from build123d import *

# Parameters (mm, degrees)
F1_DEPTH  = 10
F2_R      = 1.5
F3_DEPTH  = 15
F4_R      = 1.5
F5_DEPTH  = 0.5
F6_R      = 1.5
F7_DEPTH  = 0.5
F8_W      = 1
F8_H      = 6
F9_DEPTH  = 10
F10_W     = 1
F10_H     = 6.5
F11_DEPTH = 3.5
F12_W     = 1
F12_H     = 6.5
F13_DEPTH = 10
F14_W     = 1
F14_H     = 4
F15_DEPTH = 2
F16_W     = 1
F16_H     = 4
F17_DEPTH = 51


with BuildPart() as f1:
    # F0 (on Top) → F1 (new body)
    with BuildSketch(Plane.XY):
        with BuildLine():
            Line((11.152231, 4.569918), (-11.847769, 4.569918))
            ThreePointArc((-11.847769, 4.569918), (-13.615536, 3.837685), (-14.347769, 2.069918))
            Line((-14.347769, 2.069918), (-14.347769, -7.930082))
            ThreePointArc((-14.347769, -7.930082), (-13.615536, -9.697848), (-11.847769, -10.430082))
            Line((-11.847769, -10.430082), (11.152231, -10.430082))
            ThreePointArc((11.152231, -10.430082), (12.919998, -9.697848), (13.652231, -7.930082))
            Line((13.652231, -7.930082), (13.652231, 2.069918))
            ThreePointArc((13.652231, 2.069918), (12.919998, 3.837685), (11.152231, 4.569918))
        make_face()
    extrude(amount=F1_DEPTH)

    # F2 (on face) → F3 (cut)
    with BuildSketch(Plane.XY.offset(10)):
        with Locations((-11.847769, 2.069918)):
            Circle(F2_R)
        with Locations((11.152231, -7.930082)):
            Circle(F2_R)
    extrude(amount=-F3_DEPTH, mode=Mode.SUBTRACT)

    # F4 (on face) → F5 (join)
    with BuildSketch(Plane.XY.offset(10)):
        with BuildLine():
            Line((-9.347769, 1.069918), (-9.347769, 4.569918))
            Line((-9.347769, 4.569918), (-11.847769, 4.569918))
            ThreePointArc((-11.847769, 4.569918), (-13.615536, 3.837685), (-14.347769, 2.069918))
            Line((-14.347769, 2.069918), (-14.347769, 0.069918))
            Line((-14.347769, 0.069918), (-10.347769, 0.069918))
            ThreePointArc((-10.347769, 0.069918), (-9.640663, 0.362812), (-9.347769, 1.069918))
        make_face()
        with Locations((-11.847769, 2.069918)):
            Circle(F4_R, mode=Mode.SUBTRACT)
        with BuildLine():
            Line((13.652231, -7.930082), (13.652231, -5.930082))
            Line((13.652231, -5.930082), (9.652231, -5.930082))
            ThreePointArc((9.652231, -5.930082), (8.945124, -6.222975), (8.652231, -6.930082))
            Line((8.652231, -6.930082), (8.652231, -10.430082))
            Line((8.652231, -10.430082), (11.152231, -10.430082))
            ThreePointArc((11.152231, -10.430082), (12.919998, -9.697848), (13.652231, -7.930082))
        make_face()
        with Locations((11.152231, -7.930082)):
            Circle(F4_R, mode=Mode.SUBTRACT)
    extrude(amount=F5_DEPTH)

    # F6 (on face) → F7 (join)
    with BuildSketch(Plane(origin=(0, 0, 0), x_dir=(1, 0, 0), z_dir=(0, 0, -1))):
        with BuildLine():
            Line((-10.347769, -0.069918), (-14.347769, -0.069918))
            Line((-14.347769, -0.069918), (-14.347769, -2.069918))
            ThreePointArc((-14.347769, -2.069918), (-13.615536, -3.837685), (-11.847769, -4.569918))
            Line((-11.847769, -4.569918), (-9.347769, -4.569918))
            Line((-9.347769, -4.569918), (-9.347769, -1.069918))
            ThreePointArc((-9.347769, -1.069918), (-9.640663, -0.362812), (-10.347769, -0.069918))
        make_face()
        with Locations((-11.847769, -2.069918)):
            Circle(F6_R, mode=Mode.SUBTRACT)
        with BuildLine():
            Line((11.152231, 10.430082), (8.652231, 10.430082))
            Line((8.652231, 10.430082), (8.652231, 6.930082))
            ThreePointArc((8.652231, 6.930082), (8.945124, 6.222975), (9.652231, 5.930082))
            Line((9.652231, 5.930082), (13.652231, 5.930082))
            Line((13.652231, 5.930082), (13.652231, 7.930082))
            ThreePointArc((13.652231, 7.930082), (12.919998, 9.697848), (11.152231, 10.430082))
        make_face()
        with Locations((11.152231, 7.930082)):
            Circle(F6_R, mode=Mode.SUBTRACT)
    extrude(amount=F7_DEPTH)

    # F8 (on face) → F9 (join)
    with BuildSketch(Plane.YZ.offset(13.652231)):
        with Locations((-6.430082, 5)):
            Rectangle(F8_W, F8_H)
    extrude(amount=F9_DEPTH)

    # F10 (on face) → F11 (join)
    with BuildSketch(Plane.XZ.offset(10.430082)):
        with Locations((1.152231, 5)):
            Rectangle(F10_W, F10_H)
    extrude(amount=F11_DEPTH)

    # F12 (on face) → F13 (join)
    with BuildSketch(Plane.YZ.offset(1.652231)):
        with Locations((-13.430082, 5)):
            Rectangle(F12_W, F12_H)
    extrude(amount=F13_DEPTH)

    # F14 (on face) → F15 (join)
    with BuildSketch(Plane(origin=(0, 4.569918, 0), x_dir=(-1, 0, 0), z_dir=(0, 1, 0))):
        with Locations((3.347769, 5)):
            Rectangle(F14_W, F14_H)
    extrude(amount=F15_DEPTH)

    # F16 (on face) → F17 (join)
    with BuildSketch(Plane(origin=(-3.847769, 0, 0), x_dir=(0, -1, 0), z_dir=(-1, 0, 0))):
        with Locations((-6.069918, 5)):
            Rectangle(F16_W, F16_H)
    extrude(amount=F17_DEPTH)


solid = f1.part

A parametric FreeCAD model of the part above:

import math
import FreeCAD as App
import Part
import Sketcher
from FreeCAD import Vector
Q = App.Units.Quantity

doc = App.newDocument("Part")
body = doc.addObject("PartDesign::Body", "Body")

sketch1 = body.newObject("Sketcher::SketchObject", "Sketch")
sketch1.AttachmentSupport = (doc.getObject("XY_Plane"), [""])
sketch1.MapMode = "FlatFace"
sketch1.addGeometry(Part.LineSegment(Vector(11.152231, 4.569918, 0), Vector(-11.847769, 4.569918, 0)), False)
sketch1.addGeometry(Part.ArcOfCircle(Part.Circle(Vector(-11.847769, 2.069918, 0), Vector(0, 0, 1), 2.5), math.radians(89.999996), math.radians(180.000004)), False)
sketch1.addGeometry(Part.LineSegment(Vector(-14.347769, 2.069918, 0), Vector(-14.347769, -7.930082, 0)), False)
sketch1.addGeometry(Part.ArcOfCircle(Part.Circle(Vector(-11.847767, -7.93008, 0), Vector(0, 0, 1), 2.500002), math.radians(-179.999965), math.radians(-90.000035)), False)
sketch1.addGeometry(Part.LineSegment(Vector(-11.847769, -10.430082, 0), Vector(11.152231, -10.430082, 0)), False)
sketch1.addGeometry(Part.ArcOfCircle(Part.Circle(Vector(11.152229, -7.93008, 0), Vector(0, 0, 1), 2.500002), math.radians(-89.999965), math.radians(-0.000035)), False)
sketch1.addGeometry(Part.LineSegment(Vector(13.652231, -7.930082, 0), Vector(13.652231, 2.069918, 0)), False)
sketch1.addGeometry(Part.ArcOfCircle(Part.Circle(Vector(11.152231, 2.069918, 0), Vector(0, 0, 1), 2.5), math.radians(-0.000004), math.radians(90.000004)), False)
sketch1.addConstraint(Sketcher.Constraint("Tangent", 0, 2, 1, 1))
sketch1.addConstraint(Sketcher.Constraint("Tangent", 1, 2, 2, 1))
sketch1.addConstraint(Sketcher.Constraint("Tangent", 2, 2, 3, 1))
sketch1.addConstraint(Sketcher.Constraint("Tangent", 3, 2, 4, 1))
sketch1.addConstraint(Sketcher.Constraint("Tangent", 4, 2, 5, 1))
sketch1.addConstraint(Sketcher.Constraint("Tangent", 5, 2, 6, 1))
sketch1.addConstraint(Sketcher.Constraint("Tangent", 6, 2, 7, 1))
sketch1.addConstraint(Sketcher.Constraint("Tangent", 7, 2, 0, 1))
sketch1.addConstraint(Sketcher.Constraint("Horizontal", 0))
sketch1.addConstraint(Sketcher.Constraint("Vertical", 2))
sketch1.addConstraint(Sketcher.Constraint("Horizontal", 4))
sketch1.addConstraint(Sketcher.Constraint("Vertical", 6))
sketch1.addConstraint(Sketcher.Constraint("Equal", 1, 3))
sketch1.addConstraint(Sketcher.Constraint("Equal", 3, 5))
sketch1.addConstraint(Sketcher.Constraint("Equal", 5, 7))
sketch1.addConstraint(Sketcher.Constraint("Radius", 1, Q("2.5 mm")))
sketch1.addConstraint(Sketcher.Constraint("DistanceX", 0, 2, 0, 1, Q("23 mm")))
sketch1.addConstraint(Sketcher.Constraint("DistanceY", 2, 2, 2, 1, Q("10 mm")))
sketch1.addConstraint(Sketcher.Constraint("DistanceX", 1, 3, -1, 1, Q("11.847769 mm")))
sketch1.addConstraint(Sketcher.Constraint("DistanceY", -1, 1, 1, 3, Q("2.069918 mm")))
pad1 = body.newObject("PartDesign::Pad", "Pad")
pad1.Profile = sketch1
pad1.Length = 10

sketch2 = body.newObject("Sketcher::SketchObject", "Sketch001")
sketch2.AttachmentSupport = (doc.getObject("XY_Plane"), [""])
sketch2.MapMode = "FlatFace"
sketch2.AttachmentOffset = App.Placement(Vector(0, 0, 10), App.Rotation())
sketch2.addGeometry(Part.Circle(Vector(-11.847769, 2.069918, 0), Vector(0, 0, 1), 1.5), False)
sketch2.addGeometry(Part.Circle(Vector(11.152231, -7.930082, 0), Vector(0, 0, 1), 1.5), False)
sketch2.addConstraint(Sketcher.Constraint("Equal", 0, 1))
sketch2.addConstraint(Sketcher.Constraint("Diameter", 0, Q("3 mm")))
sketch2.addConstraint(Sketcher.Constraint("DistanceX", 0, 3, 1, 3, Q("23 mm")))
sketch2.addConstraint(Sketcher.Constraint("DistanceY", 1, 3, 0, 3, Q("10 mm")))
sketch2.addConstraint(Sketcher.Constraint("DistanceX", 0, 3, -1, 1, Q("11.847769 mm")))
sketch2.addConstraint(Sketcher.Constraint("DistanceY", 1, 3, -1, 1, Q("7.930082 mm")))
pocket1 = body.newObject("PartDesign::Pocket", "Pocket")
pocket1.Profile = sketch2
pocket1.Length = 15

sketch3 = body.newObject("Sketcher::SketchObject", "Sketch002")
sketch3.AttachmentSupport = (doc.getObject("XY_Plane"), [""])
sketch3.MapMode = "FlatFace"
sketch3.AttachmentOffset = App.Placement(Vector(0, 0, 10), App.Rotation())
sketch3.addGeometry(Part.LineSegment(Vector(-9.347769, 1.069918, 0), Vector(-9.347769, 4.569918, 0)), False)
sketch3.addGeometry(Part.LineSegment(Vector(-9.347769, 4.569918, 0), Vector(-11.847769, 4.569918, 0)), False)
sketch3.addGeometry(Part.ArcOfCircle(Part.Circle(Vector(-11.847769, 2.069918, 0), Vector(0, 0, 1), 2.5), math.radians(89.999996), math.radians(180.000004)), False)
sketch3.addGeometry(Part.LineSegment(Vector(-14.347769, 2.069918, 0), Vector(-14.347769, 0.069918, 0)), False)
sketch3.addGeometry(Part.LineSegment(Vector(-14.347769, 0.069918, 0), Vector(-10.347769, 0.069918, 0)), False)
sketch3.addGeometry(Part.ArcOfCircle(Part.Circle(Vector(-10.347772, 1.069921, 0), Vector(0, 0, 1), 1.000003), math.radians(-89.999847), math.radians(-0.000153)), False)
sketch3.addGeometry(Part.Circle(Vector(-11.847769, 2.069918, 0), Vector(0, 0, 1), 1.5), False)
sketch3.addGeometry(Part.LineSegment(Vector(13.652231, -7.930082, 0), Vector(13.652231, -5.930082, 0)), False)
sketch3.addGeometry(Part.LineSegment(Vector(13.652231, -5.930082, 0), Vector(9.652231, -5.930082, 0)), False)
sketch3.addGeometry(Part.ArcOfCircle(Part.Circle(Vector(9.65223, -6.930081, 0), Vector(0, 0, 1), 0.999999), math.radians(89.999957), math.radians(180.000043)), False)
sketch3.addGeometry(Part.LineSegment(Vector(8.652231, -6.930082, 0), Vector(8.652231, -10.430082, 0)), False)
sketch3.addGeometry(Part.LineSegment(Vector(8.652231, -10.430082, 0), Vector(11.152231, -10.430082, 0)), False)
sketch3.addGeometry(Part.ArcOfCircle(Part.Circle(Vector(11.152229, -7.93008, 0), Vector(0, 0, 1), 2.500002), math.radians(-89.999965), math.radians(-0.000035)), False)
sketch3.addGeometry(Part.Circle(Vector(11.152231, -7.930082, 0), Vector(0, 0, 1), 1.5), False)
sketch3.addConstraint(Sketcher.Constraint("Coincident", 0, 2, 1, 1))
sketch3.addConstraint(Sketcher.Constraint("Tangent", 1, 2, 2, 1))
sketch3.addConstraint(Sketcher.Constraint("Tangent", 2, 2, 3, 1))
sketch3.addConstraint(Sketcher.Constraint("Coincident", 3, 2, 4, 1))
sketch3.addConstraint(Sketcher.Constraint("Coincident", 4, 2, 5, 1))
sketch3.addConstraint(Sketcher.Constraint("Coincident", 5, 2, 0, 1))
sketch3.addConstraint(Sketcher.Constraint("Coincident", 7, 2, 8, 1))
sketch3.addConstraint(Sketcher.Constraint("Tangent", 8, 2, 9, 1))
sketch3.addConstraint(Sketcher.Constraint("Tangent", 9, 2, 10, 1))
sketch3.addConstraint(Sketcher.Constraint("Coincident", 10, 2, 11, 1))
sketch3.addConstraint(Sketcher.Constraint("Tangent", 11, 2, 12, 1))
sketch3.addConstraint(Sketcher.Constraint("Tangent", 12, 2, 7, 1))
sketch3.addConstraint(Sketcher.Constraint("Vertical", 0))
sketch3.addConstraint(Sketcher.Constraint("Horizontal", 1))
sketch3.addConstraint(Sketcher.Constraint("Vertical", 3))
sketch3.addConstraint(Sketcher.Constraint("Horizontal", 4))
sketch3.addConstraint(Sketcher.Constraint("Vertical", 7))
sketch3.addConstraint(Sketcher.Constraint("Horizontal", 8))
sketch3.addConstraint(Sketcher.Constraint("Vertical", 10))
sketch3.addConstraint(Sketcher.Constraint("Horizontal", 11))
sketch3.addConstraint(Sketcher.Constraint("Coincident", 6, 3, 2, 3))
sketch3.addConstraint(Sketcher.Constraint("Coincident", 13, 3, 12, 3))
sketch3.addConstraint(Sketcher.Constraint("Equal", 2, 12))
sketch3.addConstraint(Sketcher.Constraint("Equal", 6, 13))
sketch3.addConstraint(Sketcher.Constraint("Equal", 4, 8))
sketch3.addConstraint(Sketcher.Constraint("Equal", 1, 11))
sketch3.addConstraint(Sketcher.Constraint("Equal", 3, 7))
sketch3.addConstraint(Sketcher.Constraint("Equal", 0, 10))
sketch3.addConstraint(Sketcher.Constraint("Diameter", 6, Q("3 mm")))
sketch3.addConstraint(Sketcher.Constraint("Radius", 9, Q("0.999999 mm")))
sketch3.addConstraint(Sketcher.Constraint("Radius", 2, Q("2.5 mm")))
sketch3.addConstraint(Sketcher.Constraint("DistanceX", 4, 1, 4, 2, Q("4 mm")))
sketch3.addConstraint(Sketcher.Constraint("DistanceY", 3, 2, 3, 1, Q("2 mm")))
sketch3.addConstraint(Sketcher.Constraint("DistanceX", 5, 3, 9, 3, Q("20.000002 mm")))
sketch3.addConstraint(Sketcher.Constraint("DistanceY", 9, 3, 5, 3, Q("8.000002 mm")))
sketch3.addConstraint(Sketcher.Constraint("DistanceY", 9, 3, 6, 3, Q("8.999999 mm")))
sketch3.addConstraint(Sketcher.Constraint("DistanceX", 2, 3, -1, 1, Q("11.847769 mm")))
sketch3.addConstraint(Sketcher.Constraint("DistanceY", -1, 1, 2, 3, Q("2.069918 mm")))
pad2 = body.newObject("PartDesign::Pad", "Pad001")
pad2.Profile = sketch3
pad2.Length = 0.5

sketch4 = body.newObject("Sketcher::SketchObject", "Sketch003")
sketch4.AttachmentSupport = (doc.getObject("XY_Plane"), [""])
sketch4.MapMode = "FlatFace"
sketch4.addGeometry(Part.LineSegment(Vector(-10.347769, 0.069918, 0), Vector(-14.347769, 0.069918, 0)), False)
sketch4.addGeometry(Part.LineSegment(Vector(-14.347769, 0.069918, 0), Vector(-14.347769, 2.069918, 0)), False)
sketch4.addGeometry(Part.ArcOfCircle(Part.Circle(Vector(-11.847769, 2.069918, 0), Vector(0, 0, 1), 2.5), math.radians(89.999996), math.radians(180.000004)), False)
sketch4.addGeometry(Part.LineSegment(Vector(-11.847769, 4.569918, 0), Vector(-9.347769, 4.569918, 0)), False)
sketch4.addGeometry(Part.LineSegment(Vector(-9.347769, 4.569918, 0), Vector(-9.347769, 1.069918, 0)), False)
sketch4.addGeometry(Part.ArcOfCircle(Part.Circle(Vector(-10.347772, 1.069921, 0), Vector(0, 0, 1), 1.000003), math.radians(-89.999847), math.radians(-0.000153)), False)
sketch4.addGeometry(Part.Circle(Vector(-11.847769, 2.069918, 0), Vector(0, 0, 1), 1.5), False)
sketch4.addGeometry(Part.LineSegment(Vector(11.152231, -10.430082, 0), Vector(8.652231, -10.430082, 0)), False)
sketch4.addGeometry(Part.LineSegment(Vector(8.652231, -10.430082, 0), Vector(8.652231, -6.930082, 0)), False)
sketch4.addGeometry(Part.ArcOfCircle(Part.Circle(Vector(9.65223, -6.930081, 0), Vector(0, 0, 1), 0.999999), math.radians(89.999957), math.radians(180.000043)), False)
sketch4.addGeometry(Part.LineSegment(Vector(9.652231, -5.930082, 0), Vector(13.652231, -5.930082, 0)), False)
sketch4.addGeometry(Part.LineSegment(Vector(13.652231, -5.930082, 0), Vector(13.652231, -7.930082, 0)), False)
sketch4.addGeometry(Part.ArcOfCircle(Part.Circle(Vector(11.152229, -7.93008, 0), Vector(0, 0, 1), 2.500002), math.radians(-89.999965), math.radians(-0.000035)), False)
sketch4.addGeometry(Part.Circle(Vector(11.152231, -7.930082, 0), Vector(0, 0, 1), 1.5), False)
sketch4.addConstraint(Sketcher.Constraint("Coincident", 0, 2, 1, 1))
sketch4.addConstraint(Sketcher.Constraint("Tangent", 1, 2, 2, 2))
sketch4.addConstraint(Sketcher.Constraint("Tangent", 2, 1, 3, 1))
sketch4.addConstraint(Sketcher.Constraint("Coincident", 3, 2, 4, 1))
sketch4.addConstraint(Sketcher.Constraint("Coincident", 4, 2, 5, 2))
sketch4.addConstraint(Sketcher.Constraint("Coincident", 5, 1, 0, 1))
sketch4.addConstraint(Sketcher.Constraint("Coincident", 7, 2, 8, 1))
sketch4.addConstraint(Sketcher.Constraint("Tangent", 8, 2, 9, 2))
sketch4.addConstraint(Sketcher.Constraint("Tangent", 9, 1, 10, 1))
sketch4.addConstraint(Sketcher.Constraint("Coincident", 10, 2, 11, 1))
sketch4.addConstraint(Sketcher.Constraint("Tangent", 11, 2, 12, 2))
sketch4.addConstraint(Sketcher.Constraint("Tangent", 12, 1, 7, 1))
sketch4.addConstraint(Sketcher.Constraint("Horizontal", 0))
sketch4.addConstraint(Sketcher.Constraint("Vertical", 1))
sketch4.addConstraint(Sketcher.Constraint("Horizontal", 3))
sketch4.addConstraint(Sketcher.Constraint("Vertical", 4))
sketch4.addConstraint(Sketcher.Constraint("Horizontal", 7))
sketch4.addConstraint(Sketcher.Constraint("Vertical", 8))
sketch4.addConstraint(Sketcher.Constraint("Horizontal", 10))
sketch4.addConstraint(Sketcher.Constraint("Vertical", 11))
sketch4.addConstraint(Sketcher.Constraint("Coincident", 6, 3, 2, 3))
sketch4.addConstraint(Sketcher.Constraint("Coincident", 13, 3, 12, 3))
sketch4.addConstraint(Sketcher.Constraint("Equal", 2, 12))
sketch4.addConstraint(Sketcher.Constraint("Equal", 6, 13))
sketch4.addConstraint(Sketcher.Constraint("Equal", 3, 7))
sketch4.addConstraint(Sketcher.Constraint("Equal", 0, 10))
sketch4.addConstraint(Sketcher.Constraint("Equal", 4, 8))
sketch4.addConstraint(Sketcher.Constraint("Equal", 1, 11))
sketch4.addConstraint(Sketcher.Constraint("Diameter", 6, Q("3 mm")))
sketch4.addConstraint(Sketcher.Constraint("Radius", 9, Q("0.999999 mm")))
sketch4.addConstraint(Sketcher.Constraint("Radius", 2, Q("2.5 mm")))
sketch4.addConstraint(Sketcher.Constraint("DistanceX", 0, 2, 0, 1, Q("4 mm")))
sketch4.addConstraint(Sketcher.Constraint("DistanceY", 1, 1, 1, 2, Q("2 mm")))
sketch4.addConstraint(Sketcher.Constraint("DistanceX", 5, 3, 9, 3, Q("20.000002 mm")))
sketch4.addConstraint(Sketcher.Constraint("DistanceY", 9, 3, 5, 3, Q("8.000002 mm")))
sketch4.addConstraint(Sketcher.Constraint("DistanceY", 9, 3, 6, 3, Q("8.999999 mm")))
sketch4.addConstraint(Sketcher.Constraint("DistanceX", 2, 3, -1, 1, Q("11.847769 mm")))
sketch4.addConstraint(Sketcher.Constraint("DistanceY", -1, 1, 2, 3, Q("2.069918 mm")))
pad3 = body.newObject("PartDesign::Pad", "Pad002")
pad3.Profile = sketch4
pad3.Length = 0.5
pad3.Reversed = True

sketch5 = body.newObject("Sketcher::SketchObject", "Sketch004")
sketch5.AttachmentSupport = (doc.getObject("YZ_Plane"), [""])
sketch5.MapMode = "FlatFace"
sketch5.AttachmentOffset = App.Placement(Vector(0, 0, 13.652231), App.Rotation())
sketch5.addGeometry(Part.LineSegment(Vector(-6.930082, 8, 0), Vector(-6.930082, 2, 0)), False)
sketch5.addGeometry(Part.LineSegment(Vector(-6.930082, 2, 0), Vector(-5.930082, 2, 0)), False)
sketch5.addGeometry(Part.LineSegment(Vector(-5.930082, 2, 0), Vector(-5.930082, 8, 0)), False)
sketch5.addGeometry(Part.LineSegment(Vector(-5.930082, 8, 0), Vector(-6.930082, 8, 0)), False)
sketch5.addConstraint(Sketcher.Constraint("Coincident", 0, 2, 1, 1))
sketch5.addConstraint(Sketcher.Constraint("Coincident", 1, 2, 2, 1))
sketch5.addConstraint(Sketcher.Constraint("Coincident", 2, 2, 3, 1))
sketch5.addConstraint(Sketcher.Constraint("Coincident", 3, 2, 0, 1))
sketch5.addConstraint(Sketcher.Constraint("Vertical", 0))
sketch5.addConstraint(Sketcher.Constraint("Horizontal", 1))
sketch5.addConstraint(Sketcher.Constraint("Vertical", 2))
sketch5.addConstraint(Sketcher.Constraint("Horizontal", 3))
sketch5.addConstraint(Sketcher.Constraint("DistanceX", 1, 1, 1, 2, Q("1 mm")))
sketch5.addConstraint(Sketcher.Constraint("DistanceY", 0, 2, 0, 1, Q("6 mm")))
sketch5.addConstraint(Sketcher.Constraint("DistanceY", -1, 1, 0, 2, Q("2 mm")))
sketch5.addConstraint(Sketcher.Constraint("DistanceX", 0, 2, -1, 1, Q("6.930082 mm")))
pad4 = body.newObject("PartDesign::Pad", "Pad003")
pad4.Profile = sketch5
pad4.Length = 10

sketch6 = body.newObject("Sketcher::SketchObject", "Sketch005")
sketch6.AttachmentSupport = (doc.getObject("XZ_Plane"), [""])
sketch6.MapMode = "FlatFace"
sketch6.AttachmentOffset = App.Placement(Vector(0, 0, 10.430082), App.Rotation())
sketch6.addGeometry(Part.LineSegment(Vector(0.652231, 8.25, 0), Vector(0.652231, 1.75, 0)), False)
sketch6.addGeometry(Part.LineSegment(Vector(0.652231, 1.75, 0), Vector(1.652231, 1.75, 0)), False)
sketch6.addGeometry(Part.LineSegment(Vector(1.652231, 1.75, 0), Vector(1.652231, 8.25, 0)), False)
sketch6.addGeometry(Part.LineSegment(Vector(1.652231, 8.25, 0), Vector(0.652231, 8.25, 0)), False)
sketch6.addConstraint(Sketcher.Constraint("Coincident", 0, 2, 1, 1))
sketch6.addConstraint(Sketcher.Constraint("Coincident", 1, 2, 2, 1))
sketch6.addConstraint(Sketcher.Constraint("Coincident", 2, 2, 3, 1))
sketch6.addConstraint(Sketcher.Constraint("Coincident", 3, 2, 0, 1))
sketch6.addConstraint(Sketcher.Constraint("Vertical", 0))
sketch6.addConstraint(Sketcher.Constraint("Horizontal", 1))
sketch6.addConstraint(Sketcher.Constraint("Vertical", 2))
sketch6.addConstraint(Sketcher.Constraint("Horizontal", 3))
sketch6.addConstraint(Sketcher.Constraint("DistanceX", 1, 1, 1, 2, Q("1 mm")))
sketch6.addConstraint(Sketcher.Constraint("DistanceY", 0, 2, 0, 1, Q("6.5 mm")))
sketch6.addConstraint(Sketcher.Constraint("DistanceY", -1, 1, 0, 2, Q("1.75 mm")))
sketch6.addConstraint(Sketcher.Constraint("DistanceX", -1, 1, 0, 2, Q("0.652231 mm")))
pad5 = body.newObject("PartDesign::Pad", "Pad004")
pad5.Profile = sketch6
pad5.Length = 3.5

sketch7 = body.newObject("Sketcher::SketchObject", "Sketch006")
sketch7.AttachmentSupport = (doc.getObject("YZ_Plane"), [""])
sketch7.MapMode = "FlatFace"
sketch7.AttachmentOffset = App.Placement(Vector(0, 0, 1.652231), App.Rotation())
sketch7.addGeometry(Part.LineSegment(Vector(-13.930082, 8.25, 0), Vector(-13.930082, 1.75, 0)), False)
sketch7.addGeometry(Part.LineSegment(Vector(-13.930082, 1.75, 0), Vector(-12.930082, 1.75, 0)), False)
sketch7.addGeometry(Part.LineSegment(Vector(-12.930082, 1.75, 0), Vector(-12.930082, 8.25, 0)), False)
sketch7.addGeometry(Part.LineSegment(Vector(-12.930082, 8.25, 0), Vector(-13.930082, 8.25, 0)), False)
sketch7.addConstraint(Sketcher.Constraint("Coincident", 0, 2, 1, 1))
sketch7.addConstraint(Sketcher.Constraint("Coincident", 1, 2, 2, 1))
sketch7.addConstraint(Sketcher.Constraint("Coincident", 2, 2, 3, 1))
sketch7.addConstraint(Sketcher.Constraint("Coincident", 3, 2, 0, 1))
sketch7.addConstraint(Sketcher.Constraint("Vertical", 0))
sketch7.addConstraint(Sketcher.Constraint("Horizontal", 1))
sketch7.addConstraint(Sketcher.Constraint("Vertical", 2))
sketch7.addConstraint(Sketcher.Constraint("Horizontal", 3))
sketch7.addConstraint(Sketcher.Constraint("DistanceX", 1, 1, 1, 2, Q("1 mm")))
sketch7.addConstraint(Sketcher.Constraint("DistanceY", 0, 2, 0, 1, Q("6.5 mm")))
sketch7.addConstraint(Sketcher.Constraint("DistanceY", -1, 1, 0, 2, Q("1.75 mm")))
sketch7.addConstraint(Sketcher.Constraint("DistanceX", 0, 2, -1, 1, Q("13.930082 mm")))
pad6 = body.newObject("PartDesign::Pad", "Pad005")
pad6.Profile = sketch7
pad6.Length = 10

sketch8 = body.newObject("Sketcher::SketchObject", "Sketch007")
sketch8.AttachmentSupport = (doc.getObject("XZ_Plane"), [""])
sketch8.MapMode = "FlatFace"
sketch8.AttachmentOffset = App.Placement(Vector(0, 0, -4.569918), App.Rotation())
sketch8.addGeometry(Part.LineSegment(Vector(-2.847769, 7, 0), Vector(-2.847769, 3, 0)), False)
sketch8.addGeometry(Part.LineSegment(Vector(-2.847769, 3, 0), Vector(-3.847769, 3, 0)), False)
sketch8.addGeometry(Part.LineSegment(Vector(-3.847769, 3, 0), Vector(-3.847769, 7, 0)), False)
sketch8.addGeometry(Part.LineSegment(Vector(-3.847769, 7, 0), Vector(-2.847769, 7, 0)), False)
sketch8.addConstraint(Sketcher.Constraint("Coincident", 0, 2, 1, 1))
sketch8.addConstraint(Sketcher.Constraint("Coincident", 1, 2, 2, 1))
sketch8.addConstraint(Sketcher.Constraint("Coincident", 2, 2, 3, 1))
sketch8.addConstraint(Sketcher.Constraint("Coincident", 3, 2, 0, 1))
sketch8.addConstraint(Sketcher.Constraint("Vertical", 0))
sketch8.addConstraint(Sketcher.Constraint("Horizontal", 1))
sketch8.addConstraint(Sketcher.Constraint("Vertical", 2))
sketch8.addConstraint(Sketcher.Constraint("Horizontal", 3))
sketch8.addConstraint(Sketcher.Constraint("DistanceX", 1, 2, 1, 1, Q("1 mm")))
sketch8.addConstraint(Sketcher.Constraint("DistanceY", 0, 2, 0, 1, Q("4 mm")))
sketch8.addConstraint(Sketcher.Constraint("DistanceY", -1, 1, 0, 2, Q("3 mm")))
sketch8.addConstraint(Sketcher.Constraint("DistanceX", 0, 2, -1, 1, Q("2.847769 mm")))
pad7 = body.newObject("PartDesign::Pad", "Pad006")
pad7.Profile = sketch8
pad7.Length = 2
pad7.Reversed = True

sketch9 = body.newObject("Sketcher::SketchObject", "Sketch008")
sketch9.AttachmentSupport = (doc.getObject("YZ_Plane"), [""])
sketch9.MapMode = "FlatFace"
sketch9.AttachmentOffset = App.Placement(Vector(0, 0, -3.847769), App.Rotation())
sketch9.addGeometry(Part.LineSegment(Vector(6.569918, 7, 0), Vector(6.569918, 3, 0)), False)
sketch9.addGeometry(Part.LineSegment(Vector(6.569918, 3, 0), Vector(5.569918, 3, 0)), False)
sketch9.addGeometry(Part.LineSegment(Vector(5.569918, 3, 0), Vector(5.569918, 7, 0)), False)
sketch9.addGeometry(Part.LineSegment(Vector(5.569918, 7, 0), Vector(6.569918, 7, 0)), False)
sketch9.addConstraint(Sketcher.Constraint("Coincident", 0, 2, 1, 1))
sketch9.addConstraint(Sketcher.Constraint("Coincident", 1, 2, 2, 1))
sketch9.addConstraint(Sketcher.Constraint("Coincident", 2, 2, 3, 1))
sketch9.addConstraint(Sketcher.Constraint("Coincident", 3, 2, 0, 1))
sketch9.addConstraint(Sketcher.Constraint("Vertical", 0))
sketch9.addConstraint(Sketcher.Constraint("Horizontal", 1))
sketch9.addConstraint(Sketcher.Constraint("Vertical", 2))
sketch9.addConstraint(Sketcher.Constraint("Horizontal", 3))
sketch9.addConstraint(Sketcher.Constraint("DistanceX", 1, 2, 1, 1, Q("1 mm")))
sketch9.addConstraint(Sketcher.Constraint("DistanceY", 0, 2, 0, 1, Q("4 mm")))
sketch9.addConstraint(Sketcher.Constraint("DistanceY", -1, 1, 0, 2, Q("3 mm")))
sketch9.addConstraint(Sketcher.Constraint("DistanceX", -1, 1, 0, 2, Q("6.569918 mm")))
pad8 = body.newObject("PartDesign::Pad", "Pad007")
pad8.Profile = sketch9
pad8.Length = 51
pad8.Reversed = True

doc.recompute()
